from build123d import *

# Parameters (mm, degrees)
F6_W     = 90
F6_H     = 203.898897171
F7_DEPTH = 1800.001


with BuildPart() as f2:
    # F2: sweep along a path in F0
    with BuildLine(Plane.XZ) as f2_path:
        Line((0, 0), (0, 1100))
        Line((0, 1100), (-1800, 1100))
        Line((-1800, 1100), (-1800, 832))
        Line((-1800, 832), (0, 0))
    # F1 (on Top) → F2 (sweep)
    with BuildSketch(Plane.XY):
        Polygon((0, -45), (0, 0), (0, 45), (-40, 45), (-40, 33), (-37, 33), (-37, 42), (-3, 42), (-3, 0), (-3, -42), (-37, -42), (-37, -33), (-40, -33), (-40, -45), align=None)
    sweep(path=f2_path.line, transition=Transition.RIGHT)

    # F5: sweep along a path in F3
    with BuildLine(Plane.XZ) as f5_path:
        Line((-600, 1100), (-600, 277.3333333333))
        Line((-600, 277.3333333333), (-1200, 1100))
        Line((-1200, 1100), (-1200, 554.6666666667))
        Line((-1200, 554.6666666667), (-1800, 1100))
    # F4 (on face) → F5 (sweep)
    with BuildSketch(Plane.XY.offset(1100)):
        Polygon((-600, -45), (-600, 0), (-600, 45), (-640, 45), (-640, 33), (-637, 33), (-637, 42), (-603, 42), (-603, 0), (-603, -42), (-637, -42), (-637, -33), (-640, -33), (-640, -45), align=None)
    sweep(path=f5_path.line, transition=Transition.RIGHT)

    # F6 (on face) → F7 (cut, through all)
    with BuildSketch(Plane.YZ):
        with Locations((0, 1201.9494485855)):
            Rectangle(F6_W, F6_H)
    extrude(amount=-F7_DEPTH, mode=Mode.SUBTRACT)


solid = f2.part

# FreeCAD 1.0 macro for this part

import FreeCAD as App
import Part
import Sketcher
from FreeCAD import Vector

doc = App.newDocument("Part")
params = doc.addObject("Spreadsheet::Sheet", "Params")
for row, (alias, value) in enumerate([
    ("sketch1_width", "40 mm"),
    ("sketch1_width2", "3 mm"),
    ("sketch1_width3", "34 mm"),
    ("sketch1_height", "90 mm"),
    ("sketch1_height2", "12 mm"),
    ("sketch2_width", "1800 mm"),
    ("sketch2_height", "1100 mm"),
    ("sketch2_height2", "268 mm"),
    ("sketch3_width", "40 mm"),
    ("sketch3_width2", "3 mm"),
    ("sketch3_width3", "34 mm"),
    ("sketch3_height", "90 mm"),
    ("sketch3_height2", "12 mm"),
    ("sketch5_width", "90 mm"),
], start=1):
    params.set(f"A{row}", alias)
    params.set(f"B{row}", "=" + value)
    params.setAlias(f"B{row}", alias)

body = doc.addObject("PartDesign::Body", "Body")

sketch1 = doc.addObject("Sketcher::SketchObject", "Sketch")
body.addObject(sketch1)
sketch1.AttachmentSupport = (doc.XY_Plane, [""])
sketch1.MapMode = "FlatFace"
sketch1.addGeometry([
    Part.LineSegment(Vector(0, -45, 0), Vector(0, 45, 0)),
    Part.LineSegment(Vector(0, 45, 0), Vector(-40, 45, 0)),
    Part.LineSegment(Vector(-40, 45, 0), Vector(-40, 33, 0)),
    Part.LineSegment(Vector(-40, 33, 0), Vector(-37, 33, 0)),
    Part.LineSegment(Vector(-37, 33, 0), Vector(-37, 42, 0)),
    Part.LineSegment(Vector(-37, 42, 0), Vector(-3, 42, 0)),
    Part.LineSegment(Vector(-3, 42, 0), Vector(-3, -42, 0)),
    Part.LineSegment(Vector(-3, -42, 0), Vector(-37, -42, 0)),
    Part.LineSegment(Vector(-37, -42, 0), Vector(-37, -33, 0)),
    Part.LineSegment(Vector(-37, -33, 0), Vector(-40, -33, 0)),
    Part.LineSegment(Vector(-40, -33, 0), Vector(-40, -45, 0)),
    Part.LineSegment(Vector(-40, -45, 0), Vector(0, -45, 0)),
], False)
sketch1.addConstraint([
    Sketcher.Constraint("Coincident", 0, 2, 1, 1),
    Sketcher.Constraint("Coincident", 1, 2, 2, 1),
    Sketcher.Constraint("Coincident", 2, 2, 3, 1),
    Sketcher.Constraint("Coincident", 3, 2, 4, 1),
    Sketcher.Constraint("Coincident", 4, 2, 5, 1),
    Sketcher.Constraint("Coincident", 5, 2, 6, 1),
    Sketcher.Constraint("Coincident", 6, 2, 7, 1),
    Sketcher.Constraint("Coincident", 7, 2, 8, 1),
    Sketcher.Constraint("Coincident", 8, 2, 9, 1),
    Sketcher.Constraint("Coincident", 9, 2, 10, 1),
    Sketcher.Constraint("Coincident", 10, 2, 11, 1),
    Sketcher.Constraint("Coincident", 11, 2, 0, 1),
    Sketcher.Constraint("Vertical", 0),
    Sketcher.Constraint("Horizontal", 1),
    Sketcher.Constraint("Vertical", 2),
    Sketcher.Constraint("Horizontal", 3),
    Sketcher.Constraint("Vertical", 4),
    Sketcher.Constraint("Horizontal", 5),
    Sketcher.Constraint("Vertical", 6),
    Sketcher.Constraint("Horizontal", 7),
    Sketcher.Constraint("Vertical", 8),
    Sketcher.Constraint("Horizontal", 9),
    Sketcher.Constraint("Vertical", 10),
    Sketcher.Constraint("Horizontal", 11),
    Sketcher.Constraint("Symmetric", 0, 2, 11, 2, -1, 1),
    Sketcher.Constraint("Symmetric", 4, 2, 7, 2, -1),
    Sketcher.Constraint("Symmetric", 2, 2, 9, 2, -1),
    Sketcher.Constraint("DistanceX", 1, 2, 1, 1, 40.0),
    Sketcher.Constraint("DistanceX", 3, 1, 3, 2, 3.0),
    Sketcher.Constraint("DistanceX", 5, 1, 5, 2, 34.0),
    Sketcher.Constraint("DistanceY", 0, 1, 0, 2, 90.0),
    Sketcher.Constraint("DistanceY", 2, 2, 2, 1, 12.0),
    Sketcher.Constraint("DistanceY", 4, 1, 4, 2, 9.0),
])
sketch1.setExpression("Constraints[27]", "Params.sketch1_width")
sketch1.setExpression("Constraints[28]", "Params.sketch1_width2")
sketch1.setExpression("Constraints[29]", "Params.sketch1_width3")
sketch1.setExpression("Constraints[30]", "Params.sketch1_height")
sketch1.setExpression("Constraints[31]", "Params.sketch1_height2")

sketch2 = doc.addObject("Sketcher::SketchObject", "Sketch001")
body.addObject(sketch2)
sketch2.AttachmentSupport = (doc.XZ_Plane, [""])
sketch2.MapMode = "FlatFace"
sketch2.addGeometry([
    Part.LineSegment(Vector(0, 0, 0), Vector(0, 1100, 0)),
    Part.LineSegment(Vector(0, 1100, 0), Vector(-1800, 1100, 0)),
    Part.LineSegment(Vector(-1800, 1100, 0), Vector(-1800, 832, 0)),
    Part.LineSegment(Vector(-1800, 832, 0), Vector(0, 0, 0)),
], False)
sketch2.addConstraint([
    Sketcher.Constraint("Coincident", 0, 2, 1, 1),
    Sketcher.Constraint("Coincident", 1, 2, 2, 1),
    Sketcher.Constraint("Coincident", 2, 2, 3, 1),
    Sketcher.Constraint("Coincident", 3, 2, 0, 1),
    Sketcher.Constraint("Vertical", 0),
    Sketcher.Constraint("Horizontal", 1),
    Sketcher.Constraint("Vertical", 2),
    Sketcher.Constraint("Coincident", 3, 2, -1, 1),
    Sketcher.Constraint("DistanceX", 1, 2, 1, 1, 1800.0),
    Sketcher.Constraint("DistanceY", 0, 1, 0, 2, 1100.0),
    Sketcher.Constraint("DistanceY", 2, 2, 2, 1, 268.0),
])
sketch2.setExpression("Constraints[8]", "Params.sketch2_width")
sketch2.setExpression("Constraints[9]", "Params.sketch2_height")
sketch2.setExpression("Constraints[10]", "Params.sketch2_height2")
doc.recompute()

additivepipe = doc.addObject("PartDesign::AdditivePipe", "AdditivePipe")
body.addObject(additivepipe)
additivepipe.Profile = sketch1
additivepipe.Spine = (sketch2, ["Edge1", "Edge2", "Edge3", "Edge4"])
additivepipe.Transition = "Right corner"

sketch3 = doc.addObject("Sketcher::SketchObject", "Sketch002")
body.addObject(sketch3)
sketch3.AttachmentSupport = (doc.XY_Plane, [""])
sketch3.MapMode = "FlatFace"
sketch3.AttachmentOffset = App.Placement(Vector(0, 0, 1100), App.Rotation())
sketch3.addGeometry([
    Part.LineSegment(Vector(-600, -45, 0), Vector(-600, 45, 0)),
    Part.LineSegment(Vector(-600, 45, 0), Vector(-640, 45, 0)),
    Part.LineSegment(Vector(-640, 45, 0), Vector(-640, 33, 0)),
    Part.LineSegment(Vector(-640, 33, 0), Vector(-637, 33, 0)),
    Part.LineSegment(Vector(-637, 33, 0), Vector(-637, 42, 0)),
    Part.LineSegment(Vector(-637, 42, 0), Vector(-603, 42, 0)),
    Part.LineSegment(Vector(-603, 42, 0), Vector(-603, -42, 0)),
    Part.LineSegment(Vector(-603, -42, 0), Vector(-637, -42, 0)),
    Part.LineSegment(Vector(-637, -42, 0), Vector(-637, -33, 0)),
    Part.LineSegment(Vector(-637, -33, 0), Vector(-640, -33, 0)),
    Part.LineSegment(Vector(-640, -33, 0), Vector(-640, -45, 0)),
    Part.LineSegment(Vector(-640, -45, 0), Vector(-600, -45, 0)),
], False)
sketch3.addConstraint([
    Sketcher.Constraint("Coincident", 0, 2, 1, 1),
    Sketcher.Constraint("Coincident", 1, 2, 2, 1),
    Sketcher.Constraint("Coincident", 2, 2, 3, 1),
    Sketcher.Constraint("Coincident", 3, 2, 4, 1),
    Sketcher.Constraint("Coincident", 4, 2, 5, 1),
    Sketcher.Constraint("Coincident", 5, 2, 6, 1),
    Sketcher.Constraint("Coincident", 6, 2, 7, 1),
    Sketcher.Constraint("Coincident", 7, 2, 8, 1),
    Sketcher.Constraint("Coincident", 8, 2, 9, 1),
    Sketcher.Constraint("Coincident", 9, 2, 10, 1),
    Sketcher.Constraint("Coincident", 10, 2, 11, 1),
    Sketcher.Constraint("Coincident", 11, 2, 0, 1),
    Sketcher.Constraint("Vertical", 0),
    Sketcher.Constraint("Horizontal", 1),
    Sketcher.Constraint("Vertical", 2),
    Sketcher.Constraint("Horizontal", 3),
    Sketcher.Constraint("Vertical", 4),
    Sketcher.Constraint("Horizontal", 5),
    Sketcher.Constraint("Vertical", 6),
    Sketcher.Constraint("Horizontal", 7),
    Sketcher.Constraint("Vertical", 8),
    Sketcher.Constraint("Horizontal", 9),
    Sketcher.Constraint("Vertical", 10),
    Sketcher.Constraint("Horizontal", 11),
    Sketcher.Constraint("Symmetric", 4, 2, 7, 2, -1),
    Sketcher.Constraint("Symmetric", 2, 2, 9, 2, -1),
    Sketcher.Constraint("Equal", 2, 10),
    Sketcher.Constraint("DistanceX", 1, 2, 1, 1, 40.0),
    Sketcher.Constraint("DistanceX", 3, 1, 3, 2, 3.0),
    Sketcher.Constraint("DistanceX", 5, 1, 5, 2, 34.0),
    Sketcher.Constraint("DistanceY", 0, 1, 0, 2, 90.0),
    Sketcher.Constraint("DistanceY", 2, 2, 2, 1, 12.0),
    Sketcher.Constraint("DistanceY", 4, 1, 4, 2, 9.0),
    Sketcher.Constraint("DistanceX", 0, 2, -1, 1, 600.0),
])
sketch3.setExpression("Constraints[27]", "Params.sketch3_width")
sketch3.setExpression("Constraints[28]", "Params.sketch3_width2")
sketch3.setExpression("Constraints[29]", "Params.sketch3_width3")
sketch3.setExpression("Constraints[30]", "Params.sketch3_height")
sketch3.setExpression("Constraints[31]", "Params.sketch3_height2")

sketch4 = doc.addObject("Sketcher::SketchObject", "Sketch003")
body.addObject(sketch4)
sketch4.AttachmentSupport = (doc.XZ_Plane, [""])
sketch4.MapMode = "FlatFace"
sketch4.addGeometry([
    Part.LineSegment(Vector(-600, 1100, 0), Vector(-600, 277, 0)),
    Part.LineSegment(Vector(-600, 277, 0), Vector(-1200, 1100, 0)),
    Part.LineSegment(Vector(-1200, 1100, 0), Vector(-1200, 555, 0)),
    Part.LineSegment(Vector(-1200, 555, 0), Vector(-1800, 1100, 0)),
], False)
sketch4.addConstraint([
    Sketcher.Constraint("Coincident", 0, 2, 1, 1),
    Sketcher.Constraint("Coincident", 1, 2, 2, 1),
    Sketcher.Constraint("Coincident", 2, 2, 3, 1),
    Sketcher.Constraint("Vertical", 0),
    Sketcher.Constraint("Vertical", 2),
    Sketcher.Constraint("Horizontal", 0, 1, 1, 2),
    Sketcher.Constraint("Horizontal", 1, 2, 3, 2),
    Sketcher.Constraint("DistanceX", 0, 1, -1, 1, 600.0),
    Sketcher.Constraint("DistanceY", -1, 1, 0, 1, 1100.0),
    Sketcher.Constraint("DistanceX", 1, 2, -1, 1, 1200.0),
    Sketcher.Constraint("DistanceX", 3, 2, -1, 1, 1800.0),
    Sketcher.Constraint("DistanceY", 0, 2, 0, 1, 822.666667),
    Sketcher.Constraint("DistanceY", 2, 2, 2, 1, 545.333333),
])
doc.recompute()

additivepipe2 = doc.addObject("PartDesign::AdditivePipe", "AdditivePipe001")
body.addObject(additivepipe2)
additivepipe2.Profile = sketch3
additivepipe2.Spine = (sketch4, ["Edge1", "Edge2", "Edge3", "Edge4"])
additivepipe2.Transition = "Right corner"

sketch5 = doc.addObject("Sketcher::SketchObject", "Sketch004")
body.addObject(sketch5)
sketch5.AttachmentSupport = (doc.YZ_Plane, [""])
sketch5.MapMode = "FlatFace"
sketch5.addGeometry([
    Part.LineSegment(Vector(-45, 1304, 0), Vector(-45, 1100, 0)),
    Part.LineSegment(Vector(-45, 1100, 0), Vector(45, 1100, 0)),
    Part.LineSegment(Vector(45, 1100, 0), Vector(45, 1304, 0)),
    Part.LineSegment(Vector(45, 1304, 0), Vector(-45, 1304, 0)),
], False)
sketch5.addConstraint([
    Sketcher.Constraint("Coincident", 0, 2, 1, 1),
    Sketcher.Constraint("Coincident", 1, 2, 2, 1),
    Sketcher.Constraint("Coincident", 2, 2, 3, 1),
    Sketcher.Constraint("Coincident", 3, 2, 0, 1),
    Sketcher.Constraint("Vertical", 0),
    Sketcher.Constraint("Horizontal", 1),
    Sketcher.Constraint("Vertical", 2),
    Sketcher.Constraint("Horizontal", 3),
    Sketcher.Constraint("DistanceX", 1, 1, 1, 2, 90.0),
    Sketcher.Constraint("DistanceX", 0, 2, -1, 1, 45.0),
    Sketcher.Constraint("DistanceY", -1, 1, 0, 2, 1100.0),
    Sketcher.Constraint("DistanceY", 0, 2, 0, 1, 203.898897),
])
sketch5.setExpression("Constraints[8]", "Params.sketch5_width")
pocket1 = doc.addObject("PartDesign::Pocket", "Pocket")
body.addObject(pocket1)
pocket1.Profile = sketch5
pocket1.Type = "ThroughAll"

doc.recompute()
